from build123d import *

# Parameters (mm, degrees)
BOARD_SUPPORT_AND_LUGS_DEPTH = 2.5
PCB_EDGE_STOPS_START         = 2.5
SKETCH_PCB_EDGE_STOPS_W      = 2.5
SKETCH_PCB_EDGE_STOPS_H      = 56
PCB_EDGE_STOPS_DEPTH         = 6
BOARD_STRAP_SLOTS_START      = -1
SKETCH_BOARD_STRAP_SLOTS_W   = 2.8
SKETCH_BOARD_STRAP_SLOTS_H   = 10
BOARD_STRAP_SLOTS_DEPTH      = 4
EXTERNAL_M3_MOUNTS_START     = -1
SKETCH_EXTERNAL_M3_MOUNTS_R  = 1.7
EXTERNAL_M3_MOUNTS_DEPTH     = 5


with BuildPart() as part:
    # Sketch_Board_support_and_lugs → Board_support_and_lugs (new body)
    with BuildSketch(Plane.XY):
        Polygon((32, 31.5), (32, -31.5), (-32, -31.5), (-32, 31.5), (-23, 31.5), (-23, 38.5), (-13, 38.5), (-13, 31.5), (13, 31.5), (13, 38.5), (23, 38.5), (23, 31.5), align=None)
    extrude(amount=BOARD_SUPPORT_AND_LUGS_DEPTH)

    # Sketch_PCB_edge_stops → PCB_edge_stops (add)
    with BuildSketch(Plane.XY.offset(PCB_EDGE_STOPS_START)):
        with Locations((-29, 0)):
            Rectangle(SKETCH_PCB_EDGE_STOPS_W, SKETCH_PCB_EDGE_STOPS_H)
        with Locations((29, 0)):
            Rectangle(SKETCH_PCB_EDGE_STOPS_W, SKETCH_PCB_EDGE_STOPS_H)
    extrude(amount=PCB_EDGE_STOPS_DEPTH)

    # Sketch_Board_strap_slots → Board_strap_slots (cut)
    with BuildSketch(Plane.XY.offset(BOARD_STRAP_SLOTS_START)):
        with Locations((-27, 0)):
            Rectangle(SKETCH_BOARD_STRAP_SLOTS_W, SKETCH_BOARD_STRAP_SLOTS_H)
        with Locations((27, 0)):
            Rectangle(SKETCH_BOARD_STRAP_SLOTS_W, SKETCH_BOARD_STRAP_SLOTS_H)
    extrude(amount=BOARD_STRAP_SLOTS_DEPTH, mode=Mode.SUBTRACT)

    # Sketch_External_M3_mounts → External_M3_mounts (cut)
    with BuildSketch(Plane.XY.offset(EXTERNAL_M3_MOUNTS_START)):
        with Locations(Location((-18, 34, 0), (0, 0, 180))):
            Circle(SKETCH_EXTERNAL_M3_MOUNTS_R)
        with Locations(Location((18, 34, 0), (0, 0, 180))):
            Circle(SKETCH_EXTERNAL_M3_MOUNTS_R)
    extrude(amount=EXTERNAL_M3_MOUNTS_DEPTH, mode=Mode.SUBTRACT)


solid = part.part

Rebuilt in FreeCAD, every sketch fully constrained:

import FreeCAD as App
import Part
import Sketcher
from FreeCAD import Vector
Q = App.Units.Quantity


def add_polygon(sketch, points):
    """Adds a closed chain of lines whose ends are joined by coincident constraints."""
    first, n = sketch.GeometryCount, len(points)
    for a, b in zip(points, points[1:] + points[:1]):
        sketch.addGeometry(Part.LineSegment(App.Vector(*a, 0), App.Vector(*b, 0)), False)
    for i in range(n):
        sketch.addConstraint(Sketcher.Constraint("Coincident", first + i, 2, first + (i + 1) % n, 1))

doc = App.newDocument("Part")
body = doc.addObject("PartDesign::Body", "Body")

sketch1 = body.newObject("Sketcher::SketchObject", "Sketch")
sketch1.AttachmentSupport = (doc.getObject("XY_Plane"), [""])
sketch1.MapMode = "FlatFace"
add_polygon(sketch1, [(32, -31.5), (32, 31.5), (23, 31.5), (23, 38.5), (13, 38.5), (13, 31.5), (-13, 31.5), (-13, 38.5), (-23, 38.5), (-23, 31.5), (-32, 31.5), (-32, -31.5)])
sketch1.addConstraint([
    Sketcher.Constraint("Vertical", 0),
    Sketcher.Constraint("Horizontal", 1),
    Sketcher.Constraint("Vertical", 2),
    Sketcher.Constraint("Horizontal", 3),
    Sketcher.Constraint("Vertical", 4),
    Sketcher.Constraint("Horizontal", 5),
    Sketcher.Constraint("Vertical", 6),
    Sketcher.Constraint("Horizontal", 7),
    Sketcher.Constraint("Vertical", 8),
    Sketcher.Constraint("Horizontal", 9),
    Sketcher.Constraint("Vertical", 10),
    Sketcher.Constraint("Horizontal", 11),
    Sketcher.Constraint("Symmetric", 0, 2, 10, 2, -1, 1),
    Sketcher.Constraint("Symmetric", 3, 2, 6, 2, -2),
    Sketcher.Constraint("Symmetric", 1, 2, 8, 2, -2),
    Sketcher.Constraint("Horizontal", 1, 2, 4, 2),
    Sketcher.Constraint("DistanceX", 1, 2, 1, 1, Q("9 mm")),
    Sketcher.Constraint("DistanceX", 3, 2, 3, 1, Q("10 mm")),
    Sketcher.Constraint("DistanceX", 5, 2, 5, 1, Q("26 mm")),
    Sketcher.Constraint("DistanceY", 0, 1, 0, 2, Q("63 mm")),
    Sketcher.Constraint("DistanceY", 2, 1, 2, 2, Q("7 mm")),
])
pad1 = body.newObject("PartDesign::Pad", "Pad")
pad1.Profile = sketch1
pad1.Length = 2.5

sketch2 = body.newObject("Sketcher::SketchObject", "Sketch001")
sketch2.AttachmentSupport = (doc.getObject("XY_Plane"), [""])
sketch2.MapMode = "FlatFace"
sketch2.AttachmentOffset = App.Placement(Vector(0, 0, 2.5), App.Rotation())
add_polygon(sketch2, [(-30.25, 28), (-30.25, -28), (-27.75, -28), (-27.75, 28)])
add_polygon(sketch2, [(27.75, 28), (27.75, -28), (30.25, -28), (30.25, 28)])
sketch2.addConstraint([
    Sketcher.Constraint("Vertical", 0),
    Sketcher.Constraint("Horizontal", 1),
    Sketcher.Constraint("Vertical", 2),
    Sketcher.Constraint("Horizontal", 3),
    Sketcher.Constraint("Vertical", 4),
    Sketcher.Constraint("Horizontal", 5),
    Sketcher.Constraint("Vertical", 6),
    Sketcher.Constraint("Horizontal", 7),
    Sketcher.Constraint("Symmetric", 2, 2, 4, 2, -1, 1),
    Sketcher.Constraint("Symmetric", 0, 2, 6, 2, -1, 1),
    Sketcher.Constraint("Horizontal", 1, 2, 4, 2),
    Sketcher.Constraint("DistanceY", 0, 2, 0, 1, Q("56 mm")),
    Sketcher.Constraint("DistanceX", 1, 1, 1, 2, Q("2.5 mm")),
    Sketcher.Constraint("DistanceX", 0, 2, 4, 2, Q("58 mm")),
])
pad2 = body.newObject("PartDesign::Pad", "Pad001")
pad2.Profile = sketch2
pad2.Length = 6

sketch3 = body.newObject("Sketcher::SketchObject", "Sketch002")
sketch3.AttachmentSupport = (doc.getObject("XY_Plane"), [""])
sketch3.MapMode = "FlatFace"
sketch3.AttachmentOffset = App.Placement(Vector(0, 0, -1), App.Rotation())
add_polygon(sketch3, [(-28.4, 5), (-28.4, -5), (-25.6, -5), (-25.6, 5)])
add_polygon(sketch3, [(25.6, 5), (25.6, -5), (28.4, -5), (28.4, 5)])
sketch3.addConstraint([
    Sketcher.Constraint("Vertical", 0),
    Sketcher.Constraint("Horizontal", 1),
    Sketcher.Constraint("Vertical", 2),
    Sketcher.Constraint("Horizontal", 3),
    Sketcher.Constraint("Vertical", 4),
    Sketcher.Constraint("Horizontal", 5),
    Sketcher.Constraint("Vertical", 6),
    Sketcher.Constraint("Horizontal", 7),
    Sketcher.Constraint("Symmetric", 2, 2, 4, 2, -1, 1),
    Sketcher.Constraint("Symmetric", 0, 2, 6, 2, -1, 1),
    Sketcher.Constraint("Horizontal", 1, 2, 4, 2),
    Sketcher.Constraint("DistanceY", 0, 2, 0, 1, Q("10 mm")),
    Sketcher.Constraint("DistanceX", 1, 1, 1, 2, Q("2.8 mm")),
    Sketcher.Constraint("DistanceX", 0, 2, 4, 2, Q("54 mm")),
])
pocket1 = body.newObject("PartDesign::Pocket", "Pocket")
pocket1.Profile = sketch3
pocket1.Length = 4
pocket1.Reversed = True

sketch4 = body.newObject("Sketcher::SketchObject", "Sketch003")
sketch4.AttachmentSupport = (doc.getObject("XY_Plane"), [""])
sketch4.MapMode = "FlatFace"
sketch4.AttachmentOffset = App.Placement(Vector(0, 0, -1), App.Rotation())
sketch4.addGeometry([
    Part.Circle(Vector(-18, 34, 0), Vector(0, 0, 1), 1.7),
    Part.Circle(Vector(18, 34, 0), Vector(0, 0, 1), 1.7),
], False)
sketch4.addConstraint([
    Sketcher.Constraint("Equal", 0, 1),
    Sketcher.Constraint("Symmetric", 0, 3, 1, 3, -2),
    Sketcher.Constraint("Diameter", 0, Q("3.4 mm")),
    Sketcher.Constraint("DistanceX", 0, 3, -1, 1, Q("18 mm")),
    Sketcher.Constraint("DistanceY", -1, 1, 0, 3, Q("34 mm")),
])
pocket2 = body.newObject("PartDesign::Pocket", "Pocket001")
pocket2.Profile = sketch4
pocket2.Length = 5
pocket2.Reversed = True

doc.recompute()
